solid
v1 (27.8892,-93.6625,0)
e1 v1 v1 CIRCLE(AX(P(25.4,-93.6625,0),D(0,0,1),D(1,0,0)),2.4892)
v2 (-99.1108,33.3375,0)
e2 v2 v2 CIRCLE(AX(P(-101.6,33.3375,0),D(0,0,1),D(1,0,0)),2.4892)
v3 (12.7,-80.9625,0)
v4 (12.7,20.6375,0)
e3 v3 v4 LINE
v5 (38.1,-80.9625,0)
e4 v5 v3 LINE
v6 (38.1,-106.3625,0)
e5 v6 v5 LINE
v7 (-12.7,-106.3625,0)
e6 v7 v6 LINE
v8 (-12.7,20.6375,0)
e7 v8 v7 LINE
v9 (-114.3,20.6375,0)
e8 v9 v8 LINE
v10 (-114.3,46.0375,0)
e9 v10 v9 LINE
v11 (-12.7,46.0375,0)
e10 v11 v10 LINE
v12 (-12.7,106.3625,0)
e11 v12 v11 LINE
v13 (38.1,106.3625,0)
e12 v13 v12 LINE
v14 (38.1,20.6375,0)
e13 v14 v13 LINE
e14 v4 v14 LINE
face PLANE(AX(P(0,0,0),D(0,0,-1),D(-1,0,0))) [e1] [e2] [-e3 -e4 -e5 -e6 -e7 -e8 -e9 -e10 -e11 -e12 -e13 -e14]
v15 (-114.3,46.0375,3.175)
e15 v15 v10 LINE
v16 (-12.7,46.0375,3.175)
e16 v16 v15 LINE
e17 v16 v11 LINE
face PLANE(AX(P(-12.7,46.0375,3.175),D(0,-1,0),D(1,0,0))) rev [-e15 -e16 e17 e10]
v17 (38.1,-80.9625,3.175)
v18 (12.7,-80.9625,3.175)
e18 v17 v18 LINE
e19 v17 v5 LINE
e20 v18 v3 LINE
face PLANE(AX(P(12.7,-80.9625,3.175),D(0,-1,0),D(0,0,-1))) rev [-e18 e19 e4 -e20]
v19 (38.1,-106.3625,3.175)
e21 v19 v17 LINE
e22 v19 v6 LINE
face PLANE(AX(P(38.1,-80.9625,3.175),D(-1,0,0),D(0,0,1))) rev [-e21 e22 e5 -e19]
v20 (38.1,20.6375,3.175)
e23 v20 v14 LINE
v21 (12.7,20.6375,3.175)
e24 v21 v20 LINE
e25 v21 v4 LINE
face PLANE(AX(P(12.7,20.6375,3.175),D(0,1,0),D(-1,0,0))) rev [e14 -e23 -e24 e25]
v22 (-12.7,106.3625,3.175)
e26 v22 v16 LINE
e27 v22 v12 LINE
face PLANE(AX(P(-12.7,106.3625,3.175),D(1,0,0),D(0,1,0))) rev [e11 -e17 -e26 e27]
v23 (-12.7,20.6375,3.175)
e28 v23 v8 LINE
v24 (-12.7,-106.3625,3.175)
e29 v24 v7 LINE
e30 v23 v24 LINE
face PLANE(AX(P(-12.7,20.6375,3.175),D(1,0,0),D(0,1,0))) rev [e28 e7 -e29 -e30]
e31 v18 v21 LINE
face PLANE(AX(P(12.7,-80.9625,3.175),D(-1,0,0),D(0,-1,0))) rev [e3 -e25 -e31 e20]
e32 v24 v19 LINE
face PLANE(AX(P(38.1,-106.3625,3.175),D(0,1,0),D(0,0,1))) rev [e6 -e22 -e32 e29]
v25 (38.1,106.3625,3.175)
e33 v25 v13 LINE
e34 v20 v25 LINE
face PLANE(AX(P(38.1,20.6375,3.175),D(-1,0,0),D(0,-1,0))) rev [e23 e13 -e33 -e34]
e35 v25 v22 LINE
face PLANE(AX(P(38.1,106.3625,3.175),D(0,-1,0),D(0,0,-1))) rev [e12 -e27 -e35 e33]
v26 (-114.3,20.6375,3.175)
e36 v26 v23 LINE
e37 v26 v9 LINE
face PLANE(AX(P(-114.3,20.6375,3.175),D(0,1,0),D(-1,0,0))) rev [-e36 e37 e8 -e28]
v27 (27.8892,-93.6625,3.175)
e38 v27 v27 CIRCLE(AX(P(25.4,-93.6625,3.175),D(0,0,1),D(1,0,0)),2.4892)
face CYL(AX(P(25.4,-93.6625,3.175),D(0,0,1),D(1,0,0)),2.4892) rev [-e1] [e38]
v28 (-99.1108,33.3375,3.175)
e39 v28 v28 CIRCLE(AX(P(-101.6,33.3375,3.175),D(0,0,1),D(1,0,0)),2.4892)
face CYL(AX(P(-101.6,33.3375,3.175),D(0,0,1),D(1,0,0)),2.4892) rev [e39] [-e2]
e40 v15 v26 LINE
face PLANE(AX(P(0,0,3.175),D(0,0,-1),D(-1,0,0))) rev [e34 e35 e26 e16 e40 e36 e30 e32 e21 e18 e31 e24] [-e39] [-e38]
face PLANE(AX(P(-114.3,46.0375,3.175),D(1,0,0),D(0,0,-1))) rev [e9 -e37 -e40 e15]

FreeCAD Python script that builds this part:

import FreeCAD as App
import Part
import Sketcher
Q = App.Units.Quantity


def add_polygon(sketch, points):
    """Adds a closed chain of lines whose ends are joined by coincident constraints."""
    first, n = sketch.GeometryCount, len(points)
    for a, b in zip(points, points[1:] + points[:1]):
        sketch.addGeometry(Part.LineSegment(App.Vector(*a, 0), App.Vector(*b, 0)), False)
    for i in range(n):
        sketch.addConstraint(Sketcher.Constraint("Coincident", first + i, 2, first + (i + 1) % n, 1))

doc = App.newDocument("Part")
body = doc.addObject("PartDesign::Body", "Body")

sketch1 = body.newObject("Sketcher::SketchObject", "Sketch")
sketch1.AttachmentSupport = (doc.getObject("XY_Plane"), [""])
sketch1.MapMode = "FlatFace"
add_polygon(sketch1, [(38, -81), (13, -81), (13, 21), (38, 21), (38, 106), (-13, 106), (-13, 46), (-114, 46), (-114, 21), (-13, 21), (-13, -106), (38, -106)])
sketch1.addConstraint(Sketcher.Constraint("Horizontal", 0))
sketch1.addConstraint(Sketcher.Constraint("Vertical", 1))
sketch1.addConstraint(Sketcher.Constraint("Horizontal", 2))
sketch1.addConstraint(Sketcher.Constraint("Vertical", 3))
sketch1.addConstraint(Sketcher.Constraint("Horizontal", 4))
sketch1.addConstraint(Sketcher.Constraint("Vertical", 5))
sketch1.addConstraint(Sketcher.Constraint("Horizontal", 6))
sketch1.addConstraint(Sketcher.Constraint("Vertical", 7))
sketch1.addConstraint(Sketcher.Constraint("Horizontal", 8))
sketch1.addConstraint(Sketcher.Constraint("Vertical", 9))
sketch1.addConstraint(Sketcher.Constraint("Horizontal", 10))
sketch1.addConstraint(Sketcher.Constraint("Vertical", 11))
sketch1.addConstraint(Sketcher.Constraint("Symmetric", 1, 2, 8, 2, -2))
sketch1.addConstraint(Sketcher.Constraint("Symmetric", 4, 2, 9, 2, -1))
sketch1.addConstraint(Sketcher.Constraint("Vertical", 3, 2, 10, 2))
sketch1.addConstraint(Sketcher.Constraint("Equal", 8, 1))
sketch1.addConstraint(Sketcher.Constraint("Equal", 2, 7))
sketch1.addConstraint(Sketcher.Constraint("Equal", 7, 11))
sketch1.addConstraint(Sketcher.Constraint("DistanceX", 0, 2, 0, 1, Q("1 in")))
sketch1.addConstraint(Sketcher.Constraint("DistanceX", 4, 2, 4, 1, Q("2 in")))
sketch1.addConstraint(Sketcher.Constraint("DistanceX", 6, 2, 6, 1, Q("4 in")))
sketch1.addConstraint(Sketcher.Constraint("DistanceY", 3, 1, 3, 2, Q("3.375 in")))
pad1 = body.newObject("PartDesign::Pad", "Pad")
pad1.Profile = sketch1
pad1.Length = Q("0.125 in")

sketch2 = body.newObject("Sketcher::SketchObject", "Sketch001")
sketch2.AttachmentSupport = (doc.getObject("XY_Plane"), [""])
sketch2.MapMode = "FlatFace"
sketch2.AttachmentOffset = App.Placement(App.Vector(0, 0, 0.125 * 25.4), App.Rotation())
sketch2.addGeometry(Part.Circle(App.Vector(25.4, -93.7, 0), App.Vector(0, 0, 1), 2.5), False)
sketch2.addGeometry(Part.Circle(App.Vector(-153.3, -35.2, 0), App.Vector(0, 0, 1), 2.5), False)
sketch2.addGeometry(Part.Circle(App.Vector(-101.6, 33.3, 0), App.Vector(0, 0, 1), 2.5), False)
sketch2.addGeometry(Part.Circle(App.Vector(-174.5, 15.4, 0), App.Vector(0, 0, 1), 2.5), False)
sketch2.addConstraint(Sketcher.Constraint("Equal", 0, 1))
sketch2.addConstraint(Sketcher.Constraint("Equal", 1, 2))
sketch2.addConstraint(Sketcher.Constraint("Equal", 2, 3))
sketch2.addConstraint(Sketcher.Constraint("Diameter", 0, Q("0.196 in")))
sketch2.addConstraint(Sketcher.Constraint("DistanceX", -1, 1, 0, 3, Q("1 in")))
sketch2.addConstraint(Sketcher.Constraint("DistanceX", 2, 3, -1, 1, Q("4 in")))
sketch2.addConstraint(Sketcher.Constraint("DistanceY", 0, 3, 2, 3, Q("5 in")))
sketch2.addConstraint(Sketcher.Constraint("DistanceY", 0, 3, -1, 1, Q("3.6875 in")))
sketch2.addConstraint(Sketcher.Constraint("DistanceY", 1, 3, -1, 1, Q("35.155418 mm")))
sketch2.addConstraint(Sketcher.Constraint("DistanceY", -1, 1, 3, 3, Q("15.375329 mm")))
sketch2.addConstraint(Sketcher.Constraint("DistanceX", 1, 3, -1, 1, Q("153.251996 mm")))
sketch2.addConstraint(Sketcher.Constraint("DistanceX", 3, 3, -1, 1, Q("174.461564 mm")))
doc.recompute()
hole = body.newObject("PartDesign::Hole", "Hole")
hole.Profile = sketch2
hole.ThreadType = "None"
hole.Diameter = Q("0.196 in")
hole.DepthType = "ThroughAll"

doc.recompute()
